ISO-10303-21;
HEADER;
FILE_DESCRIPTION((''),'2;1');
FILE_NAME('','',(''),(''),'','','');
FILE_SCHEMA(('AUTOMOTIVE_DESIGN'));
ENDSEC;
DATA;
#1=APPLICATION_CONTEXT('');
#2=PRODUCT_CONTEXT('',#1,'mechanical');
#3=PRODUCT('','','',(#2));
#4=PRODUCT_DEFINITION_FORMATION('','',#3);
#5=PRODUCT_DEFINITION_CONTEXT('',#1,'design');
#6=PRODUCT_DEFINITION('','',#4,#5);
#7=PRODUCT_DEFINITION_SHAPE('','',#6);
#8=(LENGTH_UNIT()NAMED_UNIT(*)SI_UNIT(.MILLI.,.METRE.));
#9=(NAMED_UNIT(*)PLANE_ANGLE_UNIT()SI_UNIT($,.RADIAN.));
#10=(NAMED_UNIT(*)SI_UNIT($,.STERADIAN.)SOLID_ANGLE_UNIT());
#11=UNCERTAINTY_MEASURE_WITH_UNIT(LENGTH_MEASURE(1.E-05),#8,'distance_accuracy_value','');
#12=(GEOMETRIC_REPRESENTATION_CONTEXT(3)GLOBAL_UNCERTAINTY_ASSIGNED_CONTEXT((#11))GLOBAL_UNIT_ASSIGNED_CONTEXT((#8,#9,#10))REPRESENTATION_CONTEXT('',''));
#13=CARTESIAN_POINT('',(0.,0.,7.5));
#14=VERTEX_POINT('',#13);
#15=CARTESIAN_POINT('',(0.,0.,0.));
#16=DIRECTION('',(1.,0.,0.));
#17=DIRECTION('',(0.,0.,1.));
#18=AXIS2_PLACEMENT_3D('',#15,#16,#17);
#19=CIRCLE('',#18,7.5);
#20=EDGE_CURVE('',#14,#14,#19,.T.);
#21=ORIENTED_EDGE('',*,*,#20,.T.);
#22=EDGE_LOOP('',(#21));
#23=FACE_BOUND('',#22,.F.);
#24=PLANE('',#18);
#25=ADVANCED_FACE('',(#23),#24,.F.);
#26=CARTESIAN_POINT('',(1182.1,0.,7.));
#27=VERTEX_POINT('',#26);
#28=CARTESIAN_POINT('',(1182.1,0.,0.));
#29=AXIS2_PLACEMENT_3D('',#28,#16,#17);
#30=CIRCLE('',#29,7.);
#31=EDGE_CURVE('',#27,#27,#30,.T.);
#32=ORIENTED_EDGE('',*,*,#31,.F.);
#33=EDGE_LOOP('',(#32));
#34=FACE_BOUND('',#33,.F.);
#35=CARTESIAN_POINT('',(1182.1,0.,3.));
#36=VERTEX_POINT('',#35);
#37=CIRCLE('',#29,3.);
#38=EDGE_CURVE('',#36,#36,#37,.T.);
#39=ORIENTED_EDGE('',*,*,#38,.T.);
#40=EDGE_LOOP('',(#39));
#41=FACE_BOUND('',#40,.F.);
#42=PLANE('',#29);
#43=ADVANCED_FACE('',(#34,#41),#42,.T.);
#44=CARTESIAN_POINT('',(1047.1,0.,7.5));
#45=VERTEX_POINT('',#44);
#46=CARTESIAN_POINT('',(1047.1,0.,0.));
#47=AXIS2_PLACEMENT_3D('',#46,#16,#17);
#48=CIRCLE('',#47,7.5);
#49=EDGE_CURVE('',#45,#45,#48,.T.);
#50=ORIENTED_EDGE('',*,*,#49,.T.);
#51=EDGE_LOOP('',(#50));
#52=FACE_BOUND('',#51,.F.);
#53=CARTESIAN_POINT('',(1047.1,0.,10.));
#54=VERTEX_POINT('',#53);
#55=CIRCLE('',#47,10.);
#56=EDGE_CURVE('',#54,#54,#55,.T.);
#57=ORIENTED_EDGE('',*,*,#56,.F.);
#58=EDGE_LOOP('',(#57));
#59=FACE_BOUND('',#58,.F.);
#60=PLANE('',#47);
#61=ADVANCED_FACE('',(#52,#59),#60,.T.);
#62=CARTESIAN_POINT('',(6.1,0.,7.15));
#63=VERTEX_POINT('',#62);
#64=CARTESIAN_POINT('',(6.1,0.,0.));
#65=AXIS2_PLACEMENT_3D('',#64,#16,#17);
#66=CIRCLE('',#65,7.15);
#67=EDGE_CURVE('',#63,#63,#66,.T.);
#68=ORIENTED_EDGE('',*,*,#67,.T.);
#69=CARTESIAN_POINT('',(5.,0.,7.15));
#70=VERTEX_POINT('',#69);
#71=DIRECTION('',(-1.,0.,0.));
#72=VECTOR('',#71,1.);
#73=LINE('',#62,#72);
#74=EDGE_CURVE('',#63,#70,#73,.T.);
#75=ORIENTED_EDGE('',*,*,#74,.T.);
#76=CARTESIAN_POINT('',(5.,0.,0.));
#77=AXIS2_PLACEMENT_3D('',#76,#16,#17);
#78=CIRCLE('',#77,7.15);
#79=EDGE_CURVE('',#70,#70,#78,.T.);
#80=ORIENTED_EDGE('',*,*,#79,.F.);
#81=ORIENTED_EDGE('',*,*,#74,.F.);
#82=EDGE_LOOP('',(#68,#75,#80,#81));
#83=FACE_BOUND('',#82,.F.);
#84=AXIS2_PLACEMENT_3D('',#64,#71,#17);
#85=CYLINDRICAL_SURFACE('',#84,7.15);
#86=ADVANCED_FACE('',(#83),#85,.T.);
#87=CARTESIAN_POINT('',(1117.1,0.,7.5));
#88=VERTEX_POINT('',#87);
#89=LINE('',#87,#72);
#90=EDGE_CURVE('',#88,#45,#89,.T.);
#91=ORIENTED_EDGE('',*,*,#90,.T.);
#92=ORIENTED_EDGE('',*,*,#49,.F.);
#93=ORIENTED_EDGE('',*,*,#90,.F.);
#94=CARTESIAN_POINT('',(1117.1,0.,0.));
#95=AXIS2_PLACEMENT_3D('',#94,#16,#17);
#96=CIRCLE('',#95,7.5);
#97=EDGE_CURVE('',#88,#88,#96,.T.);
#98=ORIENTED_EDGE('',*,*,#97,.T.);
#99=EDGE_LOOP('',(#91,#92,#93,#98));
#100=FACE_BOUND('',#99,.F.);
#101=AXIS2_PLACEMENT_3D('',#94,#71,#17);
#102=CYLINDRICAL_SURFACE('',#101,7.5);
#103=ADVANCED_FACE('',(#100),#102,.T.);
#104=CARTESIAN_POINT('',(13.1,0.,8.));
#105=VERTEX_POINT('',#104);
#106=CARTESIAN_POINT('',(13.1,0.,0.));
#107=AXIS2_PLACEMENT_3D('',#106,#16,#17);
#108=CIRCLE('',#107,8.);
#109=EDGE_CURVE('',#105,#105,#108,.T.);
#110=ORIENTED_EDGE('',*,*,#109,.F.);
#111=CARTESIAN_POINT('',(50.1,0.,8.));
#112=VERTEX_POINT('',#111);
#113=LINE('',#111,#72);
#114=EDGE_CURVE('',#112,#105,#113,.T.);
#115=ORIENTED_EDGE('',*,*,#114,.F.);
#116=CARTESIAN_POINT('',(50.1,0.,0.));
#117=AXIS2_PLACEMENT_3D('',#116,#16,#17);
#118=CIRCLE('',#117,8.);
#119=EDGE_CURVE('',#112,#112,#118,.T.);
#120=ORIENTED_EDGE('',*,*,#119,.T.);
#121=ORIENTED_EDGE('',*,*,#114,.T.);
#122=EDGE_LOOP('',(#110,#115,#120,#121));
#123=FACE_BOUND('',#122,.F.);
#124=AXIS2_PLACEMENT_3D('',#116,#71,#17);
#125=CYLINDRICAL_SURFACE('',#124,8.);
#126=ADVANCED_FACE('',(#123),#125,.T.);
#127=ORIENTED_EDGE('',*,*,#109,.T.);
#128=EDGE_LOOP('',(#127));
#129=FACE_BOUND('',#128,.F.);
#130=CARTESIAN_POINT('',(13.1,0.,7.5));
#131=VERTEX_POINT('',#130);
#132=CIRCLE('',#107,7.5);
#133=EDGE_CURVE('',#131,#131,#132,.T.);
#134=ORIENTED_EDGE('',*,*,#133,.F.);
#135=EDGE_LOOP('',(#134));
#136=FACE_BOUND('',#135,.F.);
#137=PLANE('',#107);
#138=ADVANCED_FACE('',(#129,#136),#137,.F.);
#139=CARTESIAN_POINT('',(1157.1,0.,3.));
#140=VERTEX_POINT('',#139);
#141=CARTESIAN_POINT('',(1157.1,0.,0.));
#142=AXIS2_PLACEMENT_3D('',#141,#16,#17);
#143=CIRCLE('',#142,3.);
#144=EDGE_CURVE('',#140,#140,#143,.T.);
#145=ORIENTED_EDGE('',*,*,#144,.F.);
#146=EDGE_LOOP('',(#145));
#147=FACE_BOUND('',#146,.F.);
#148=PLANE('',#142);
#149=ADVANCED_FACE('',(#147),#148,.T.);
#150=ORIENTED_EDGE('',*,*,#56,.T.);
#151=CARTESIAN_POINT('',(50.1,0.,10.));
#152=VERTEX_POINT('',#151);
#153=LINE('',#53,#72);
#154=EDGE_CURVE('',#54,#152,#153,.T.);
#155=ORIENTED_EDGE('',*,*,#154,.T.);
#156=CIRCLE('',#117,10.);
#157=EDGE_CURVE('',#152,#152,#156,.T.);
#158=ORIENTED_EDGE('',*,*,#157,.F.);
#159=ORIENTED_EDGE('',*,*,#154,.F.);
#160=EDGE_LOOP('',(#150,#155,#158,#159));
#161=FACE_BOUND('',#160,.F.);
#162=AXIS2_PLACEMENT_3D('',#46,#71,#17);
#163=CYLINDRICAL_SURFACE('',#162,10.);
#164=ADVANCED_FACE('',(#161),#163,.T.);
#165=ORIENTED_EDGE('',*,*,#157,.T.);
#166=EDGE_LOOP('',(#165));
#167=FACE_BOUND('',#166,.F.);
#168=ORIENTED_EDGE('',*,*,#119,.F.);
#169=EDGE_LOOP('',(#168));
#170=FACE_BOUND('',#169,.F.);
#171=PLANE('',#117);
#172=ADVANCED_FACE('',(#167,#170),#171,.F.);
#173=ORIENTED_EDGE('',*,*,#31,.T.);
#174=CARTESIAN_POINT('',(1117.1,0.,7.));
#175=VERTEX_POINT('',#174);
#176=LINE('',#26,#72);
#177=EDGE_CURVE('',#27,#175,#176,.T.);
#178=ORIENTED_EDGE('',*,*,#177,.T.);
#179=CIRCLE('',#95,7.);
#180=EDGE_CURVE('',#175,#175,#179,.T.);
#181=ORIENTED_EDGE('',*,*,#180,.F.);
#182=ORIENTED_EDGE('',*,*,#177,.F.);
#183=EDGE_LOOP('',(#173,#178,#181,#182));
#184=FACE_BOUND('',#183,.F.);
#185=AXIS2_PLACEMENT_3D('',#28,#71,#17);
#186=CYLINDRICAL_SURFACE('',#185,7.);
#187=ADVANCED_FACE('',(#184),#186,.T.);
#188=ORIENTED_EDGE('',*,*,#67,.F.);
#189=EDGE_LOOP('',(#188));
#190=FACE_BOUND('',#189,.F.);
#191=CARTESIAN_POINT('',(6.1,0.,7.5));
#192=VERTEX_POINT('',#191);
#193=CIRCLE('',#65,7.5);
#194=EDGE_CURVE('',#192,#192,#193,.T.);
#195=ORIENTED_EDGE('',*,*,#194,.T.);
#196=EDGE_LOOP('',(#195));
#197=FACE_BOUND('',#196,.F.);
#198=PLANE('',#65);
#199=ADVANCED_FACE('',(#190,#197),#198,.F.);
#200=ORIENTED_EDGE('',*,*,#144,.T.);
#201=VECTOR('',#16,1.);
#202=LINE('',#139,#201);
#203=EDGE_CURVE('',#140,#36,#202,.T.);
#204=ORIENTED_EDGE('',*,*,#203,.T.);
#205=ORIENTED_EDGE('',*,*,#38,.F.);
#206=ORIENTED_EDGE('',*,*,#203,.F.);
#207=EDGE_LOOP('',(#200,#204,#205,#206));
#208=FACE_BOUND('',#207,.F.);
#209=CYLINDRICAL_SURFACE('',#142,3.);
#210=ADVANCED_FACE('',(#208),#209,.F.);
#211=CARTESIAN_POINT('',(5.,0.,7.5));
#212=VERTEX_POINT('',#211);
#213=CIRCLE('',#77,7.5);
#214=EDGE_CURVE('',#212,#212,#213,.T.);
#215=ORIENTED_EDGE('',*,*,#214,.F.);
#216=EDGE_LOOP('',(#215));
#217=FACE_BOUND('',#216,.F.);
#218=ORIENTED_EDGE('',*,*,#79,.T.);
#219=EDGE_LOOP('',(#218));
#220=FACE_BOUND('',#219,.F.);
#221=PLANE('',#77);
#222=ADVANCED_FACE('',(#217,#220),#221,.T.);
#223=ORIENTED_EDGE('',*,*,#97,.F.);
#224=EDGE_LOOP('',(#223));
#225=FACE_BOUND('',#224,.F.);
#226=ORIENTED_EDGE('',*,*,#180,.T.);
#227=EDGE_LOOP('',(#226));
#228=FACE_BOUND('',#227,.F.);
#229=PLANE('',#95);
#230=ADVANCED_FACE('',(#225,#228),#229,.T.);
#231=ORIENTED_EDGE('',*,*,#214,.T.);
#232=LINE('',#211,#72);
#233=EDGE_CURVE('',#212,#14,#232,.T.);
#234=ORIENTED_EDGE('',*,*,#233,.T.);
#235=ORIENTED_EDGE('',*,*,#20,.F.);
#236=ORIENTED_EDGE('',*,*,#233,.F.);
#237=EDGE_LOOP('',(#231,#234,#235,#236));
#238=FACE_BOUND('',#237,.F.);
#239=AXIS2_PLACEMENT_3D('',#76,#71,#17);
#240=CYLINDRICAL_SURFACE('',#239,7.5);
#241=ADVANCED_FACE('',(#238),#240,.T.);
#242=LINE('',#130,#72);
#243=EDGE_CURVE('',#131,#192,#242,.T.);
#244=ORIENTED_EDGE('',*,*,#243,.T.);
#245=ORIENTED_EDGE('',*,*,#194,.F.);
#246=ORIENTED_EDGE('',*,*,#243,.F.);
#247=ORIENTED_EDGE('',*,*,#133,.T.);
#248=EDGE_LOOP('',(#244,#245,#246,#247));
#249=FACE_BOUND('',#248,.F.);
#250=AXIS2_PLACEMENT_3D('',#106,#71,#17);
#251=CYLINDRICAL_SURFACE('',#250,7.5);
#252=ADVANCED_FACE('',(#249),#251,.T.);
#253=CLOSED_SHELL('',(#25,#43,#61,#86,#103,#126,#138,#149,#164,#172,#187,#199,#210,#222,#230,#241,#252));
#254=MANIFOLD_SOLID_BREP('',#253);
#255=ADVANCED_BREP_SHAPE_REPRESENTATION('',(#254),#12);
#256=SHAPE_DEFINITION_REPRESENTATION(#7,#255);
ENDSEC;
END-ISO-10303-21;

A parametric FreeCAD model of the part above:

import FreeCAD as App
import Part
import Sketcher


def add_polygon(sketch, points):
    """Adds a closed chain of lines whose ends are joined by coincident constraints."""
    first, n = sketch.GeometryCount, len(points)
    for a, b in zip(points, points[1:] + points[:1]):
        sketch.addGeometry(Part.LineSegment(App.Vector(*a, 0), App.Vector(*b, 0)), False)
    for i in range(n):
        sketch.addConstraint(Sketcher.Constraint("Coincident", first + i, 2, first + (i + 1) % n, 1))

doc = App.newDocument("Part")
body = doc.addObject("PartDesign::Body", "Body")

# Sketch on XZ plane
sketch1 = body.newObject("Sketcher::SketchObject", "Sketch")
sketch1.AttachmentSupport = (doc.getObject("XZ_Plane"), [""])
sketch1.MapMode = "FlatFace"
add_polygon(sketch1, [(0, 7.5), (0, 0), (1157.1, 0), (1157.1, 3), (1182.1, 3), (1182.1, 7), (1117.1, 7), (1117.1, 7.5), (1047.1, 7.5), (1047.1, 10), (50.1, 10), (50.1, 8), (13.1, 8), (13.1, 7.5), (6.1, 7.5), (6.1, 7.15), (5, 7.15), (5, 7.5)])  # lines 0-17
sketch1.addConstraint([
    Sketcher.Constraint("Vertical", 0),
    Sketcher.Constraint("Horizontal", 1),
    Sketcher.Constraint("Vertical", 2),
    Sketcher.Constraint("Horizontal", 3),
    Sketcher.Constraint("Vertical", 4),
    Sketcher.Constraint("Horizontal", 5),
    Sketcher.Constraint("Vertical", 6),
    Sketcher.Constraint("Horizontal", 7),
    Sketcher.Constraint("Vertical", 8),
    Sketcher.Constraint("Horizontal", 9),
    Sketcher.Constraint("Vertical", 10),
    Sketcher.Constraint("Horizontal", 11),
    Sketcher.Constraint("Vertical", 12),
    Sketcher.Constraint("Horizontal", 13),
    Sketcher.Constraint("Vertical", 14),
    Sketcher.Constraint("Horizontal", 15),
    Sketcher.Constraint("Vertical", 16),
    Sketcher.Constraint("Horizontal", 17),
    Sketcher.Constraint("Coincident", 0, 2, -1, 1),
    Sketcher.Constraint("Horizontal", 7, 2, 12, 2),
    Sketcher.Constraint("Horizontal", 13, 2, 16, 2),
    Sketcher.Constraint("Equal", 6, 12),
    Sketcher.Constraint("DistanceX", 3, 1, 3, 2, 25.0),
    Sketcher.Constraint("DistanceX", 5, 2, 5, 1, 65.0),
    Sketcher.Constraint("DistanceX", 7, 2, 7, 1, 70.0),
    Sketcher.Constraint("DistanceX", 9, 2, 9, 1, 997.0),
    Sketcher.Constraint("DistanceX", 11, 2, 11, 1, 37.0),
    Sketcher.Constraint("DistanceX", 13, 2, 13, 1, 7.0),
    Sketcher.Constraint("DistanceX", 17, 2, 17, 1, 5.0),
    Sketcher.Constraint("DistanceY", 2, 1, 2, 2, 3.0),
    Sketcher.Constraint("DistanceY", 4, 1, 4, 2, 4.0),
    Sketcher.Constraint("DistanceY", 10, 2, 10, 1, 2.0),
    Sketcher.Constraint("DistanceX", 1, 1, 1, 2, 1157.1),
    Sketcher.Constraint("DistanceY", 0, 2, 0, 1, 7.5),
    Sketcher.Constraint("DistanceY", 14, 2, 14, 1, 0.35),
])
revolution = body.newObject("PartDesign::Revolution", "Revolution")
revolution.Profile = sketch1
revolution.ReferenceAxis = (sketch1, ["H_Axis"])
revolution.Angle = 360

doc.recompute()
